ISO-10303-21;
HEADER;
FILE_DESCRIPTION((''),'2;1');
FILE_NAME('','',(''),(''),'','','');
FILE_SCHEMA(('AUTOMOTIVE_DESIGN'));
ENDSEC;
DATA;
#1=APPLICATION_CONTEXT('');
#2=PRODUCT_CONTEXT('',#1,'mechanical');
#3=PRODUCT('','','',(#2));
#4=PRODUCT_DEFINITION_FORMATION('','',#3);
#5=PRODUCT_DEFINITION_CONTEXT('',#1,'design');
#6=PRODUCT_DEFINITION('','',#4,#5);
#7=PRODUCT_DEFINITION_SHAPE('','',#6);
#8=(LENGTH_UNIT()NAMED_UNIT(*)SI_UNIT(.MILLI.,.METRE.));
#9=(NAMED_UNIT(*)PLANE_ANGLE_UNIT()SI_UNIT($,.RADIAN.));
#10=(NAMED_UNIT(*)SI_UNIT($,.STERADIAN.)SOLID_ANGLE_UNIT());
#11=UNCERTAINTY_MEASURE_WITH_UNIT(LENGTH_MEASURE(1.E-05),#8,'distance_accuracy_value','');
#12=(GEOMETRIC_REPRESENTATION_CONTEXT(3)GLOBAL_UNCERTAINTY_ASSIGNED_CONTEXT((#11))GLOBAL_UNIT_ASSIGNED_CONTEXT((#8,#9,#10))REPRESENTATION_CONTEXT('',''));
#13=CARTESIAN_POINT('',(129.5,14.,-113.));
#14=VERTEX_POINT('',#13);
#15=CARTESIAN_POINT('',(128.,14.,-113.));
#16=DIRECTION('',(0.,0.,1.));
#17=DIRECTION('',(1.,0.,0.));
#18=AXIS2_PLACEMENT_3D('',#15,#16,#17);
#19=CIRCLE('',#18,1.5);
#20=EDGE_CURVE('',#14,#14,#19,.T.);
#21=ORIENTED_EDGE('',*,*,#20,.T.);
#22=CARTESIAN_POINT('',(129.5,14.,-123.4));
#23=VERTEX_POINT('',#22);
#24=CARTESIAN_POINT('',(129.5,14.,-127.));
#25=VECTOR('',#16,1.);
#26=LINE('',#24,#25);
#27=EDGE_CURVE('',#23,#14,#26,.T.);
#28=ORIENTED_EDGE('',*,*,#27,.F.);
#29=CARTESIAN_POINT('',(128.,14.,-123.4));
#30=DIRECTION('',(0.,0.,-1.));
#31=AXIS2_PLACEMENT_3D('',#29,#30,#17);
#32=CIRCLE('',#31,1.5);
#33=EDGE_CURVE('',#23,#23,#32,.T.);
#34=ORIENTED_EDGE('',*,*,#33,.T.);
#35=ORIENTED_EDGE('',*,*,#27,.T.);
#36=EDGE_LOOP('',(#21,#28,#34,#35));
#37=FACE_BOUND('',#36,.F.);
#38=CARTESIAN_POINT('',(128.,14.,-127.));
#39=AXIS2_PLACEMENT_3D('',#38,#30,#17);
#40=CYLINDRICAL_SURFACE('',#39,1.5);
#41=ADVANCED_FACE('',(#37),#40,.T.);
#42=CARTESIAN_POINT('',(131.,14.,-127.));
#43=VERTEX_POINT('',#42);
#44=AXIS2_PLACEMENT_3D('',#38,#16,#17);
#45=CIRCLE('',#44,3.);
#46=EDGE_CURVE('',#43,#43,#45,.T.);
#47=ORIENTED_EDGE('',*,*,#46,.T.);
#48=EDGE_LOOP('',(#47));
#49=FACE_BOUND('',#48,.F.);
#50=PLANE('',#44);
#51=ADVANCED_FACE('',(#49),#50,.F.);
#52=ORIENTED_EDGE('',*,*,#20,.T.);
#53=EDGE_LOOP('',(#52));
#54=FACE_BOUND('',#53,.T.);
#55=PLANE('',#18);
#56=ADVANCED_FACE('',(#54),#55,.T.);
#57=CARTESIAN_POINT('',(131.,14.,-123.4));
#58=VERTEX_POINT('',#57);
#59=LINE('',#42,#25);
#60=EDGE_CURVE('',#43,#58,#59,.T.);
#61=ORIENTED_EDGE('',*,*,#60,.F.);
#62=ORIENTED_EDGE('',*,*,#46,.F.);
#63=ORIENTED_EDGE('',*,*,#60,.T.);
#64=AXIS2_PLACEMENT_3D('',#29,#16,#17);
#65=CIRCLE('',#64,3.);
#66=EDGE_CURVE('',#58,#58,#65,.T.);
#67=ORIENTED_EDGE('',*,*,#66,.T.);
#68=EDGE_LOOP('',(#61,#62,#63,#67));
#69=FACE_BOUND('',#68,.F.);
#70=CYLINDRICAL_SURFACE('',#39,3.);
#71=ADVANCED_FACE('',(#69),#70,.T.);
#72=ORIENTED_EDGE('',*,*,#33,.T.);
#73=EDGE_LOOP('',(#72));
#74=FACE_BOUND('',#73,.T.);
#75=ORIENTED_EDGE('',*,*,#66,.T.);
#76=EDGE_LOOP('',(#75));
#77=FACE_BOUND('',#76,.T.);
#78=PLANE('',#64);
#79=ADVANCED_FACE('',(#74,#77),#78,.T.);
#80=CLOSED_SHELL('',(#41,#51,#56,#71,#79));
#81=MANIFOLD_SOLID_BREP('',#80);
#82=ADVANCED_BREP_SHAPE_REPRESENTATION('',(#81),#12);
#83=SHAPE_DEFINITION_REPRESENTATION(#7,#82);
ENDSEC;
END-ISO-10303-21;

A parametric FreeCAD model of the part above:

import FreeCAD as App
import Part
import Sketcher

V = App.Vector
Q = App.Units.Quantity

doc = App.newDocument("Part")
body = doc.addObject("PartDesign::Body", "Body")

# Sketch on XY plane
sketch1 = body.newObject("Sketcher::SketchObject", "Sketch")
sketch1.AttachmentSupport = (doc.getObject("XY_Plane"), [""])
sketch1.MapMode = "FlatFace"
sketch1.AttachmentOffset = App.Placement(V(0, 0, 10), App.Rotation())
sketch1.addGeometry(Part.Circle(V(0, 0, 0), V(0, 0, 1), 3), False)
sketch1.addConstraint(Sketcher.Constraint("Coincident", 0, 3, -1, 1))
sketch1.addConstraint(Sketcher.Constraint("Diameter", 0, Q("6 mm")))
pad1 = body.newObject("PartDesign::Pad", "Pad")
pad1.Profile = sketch1
pad1.Length = 3.6
body2 = doc.addObject("PartDesign::Body", "Body001")

# Sketch on XY plane
sketch2 = body2.newObject("Sketcher::SketchObject", "Sketch001")
sketch2.AttachmentSupport = (doc.getObject("XY_Plane001"), [""])
sketch2.MapMode = "FlatFace"
sketch2.AttachmentOffset = App.Placement(V(0, 0, 10), App.Rotation())
sketch2.addGeometry(Part.Circle(V(0, 0, 0), V(0, 0, 1), 1.5), False)
sketch2.addConstraint(Sketcher.Constraint("Coincident", 0, 3, -1, 1))
sketch2.addConstraint(Sketcher.Constraint("Diameter", 0, Q("3 mm")))
pad2 = body2.newObject("PartDesign::Pad", "Pad001")
pad2.Profile = sketch2
pad2.Length = 14
doc.recompute()

boolean = body2.newObject("PartDesign::Boolean", "Boolean")
boolean.Type = "Fuse"
boolean.addObjects([body])
body3 = doc.addObject("PartDesign::Body", "Body002")
doc.recompute()

body2.Placement = App.Placement(V(128, 14, -137), App.Rotation(V(0, 0, 1), 0))
boolean2 = body3.newObject("PartDesign::Boolean", "Boolean001")
boolean2.Type = "Fuse"
boolean2.addObjects([body2])

doc.recompute()
